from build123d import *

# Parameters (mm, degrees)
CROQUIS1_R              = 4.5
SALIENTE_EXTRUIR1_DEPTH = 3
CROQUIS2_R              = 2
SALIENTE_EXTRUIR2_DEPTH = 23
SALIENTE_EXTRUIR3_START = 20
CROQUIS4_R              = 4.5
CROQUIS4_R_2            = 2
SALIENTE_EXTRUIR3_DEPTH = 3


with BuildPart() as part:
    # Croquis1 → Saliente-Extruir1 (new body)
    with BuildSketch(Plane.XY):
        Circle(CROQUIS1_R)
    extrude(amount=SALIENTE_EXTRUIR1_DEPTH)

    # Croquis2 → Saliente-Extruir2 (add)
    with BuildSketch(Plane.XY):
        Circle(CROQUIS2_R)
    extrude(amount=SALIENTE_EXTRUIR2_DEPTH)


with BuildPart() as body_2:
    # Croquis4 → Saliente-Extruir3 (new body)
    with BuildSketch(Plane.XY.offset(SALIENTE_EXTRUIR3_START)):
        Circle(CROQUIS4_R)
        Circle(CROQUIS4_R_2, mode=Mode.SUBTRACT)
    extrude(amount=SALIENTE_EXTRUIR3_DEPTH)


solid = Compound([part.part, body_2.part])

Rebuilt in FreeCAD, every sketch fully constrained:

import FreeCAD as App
import Part
import Sketcher

V = App.Vector
Q = App.Units.Quantity

doc = App.newDocument("Part")
params = doc.addObject("Spreadsheet::Sheet", "Params")
for row, (alias, value) in enumerate([
    ("sketch1_diameter", "9 mm"),
    ("pad1_length", "3 mm"),
    ("sketch2_diameter", "4 mm"),
    ("pad2_length", "23 mm"),
    ("sketch3_diameter", "9 mm"),
    ("sketch3_diameter2", "4 mm"),
    ("pad3_length", "3 mm"),
], start=1):
    params.set(f"A{row}", alias)
    params.set(f"B{row}", "=" + value)
    params.setAlias(f"B{row}", alias)

body = doc.addObject("PartDesign::Body", "Body")

# Sketch on XY plane
sketch1 = body.newObject("Sketcher::SketchObject", "Sketch")
sketch1.AttachmentSupport = (doc.getObject("XY_Plane"), [""])
sketch1.MapMode = "FlatFace"
sketch1.addGeometry(Part.Circle(V(0, 0, 0), V(0, 0, 1), 4.5), False)
sketch1.addConstraint(Sketcher.Constraint("Coincident", 0, 3, -1, 1))
sketch1.addConstraint(Sketcher.Constraint("Diameter", 0, Q("9 mm")))
sketch1.setExpression("Constraints[1]", "Params.sketch1_diameter")
pad1 = body.newObject("PartDesign::Pad", "Pad")
pad1.Profile = sketch1
pad1.setExpression("Length", "Params.pad1_length")

# Sketch on XY plane
sketch2 = body.newObject("Sketcher::SketchObject", "Sketch001")
sketch2.AttachmentSupport = (doc.getObject("XY_Plane"), [""])
sketch2.MapMode = "FlatFace"
sketch2.addGeometry(Part.Circle(V(0, 0, 0), V(0, 0, 1), 2), False)
sketch2.addConstraint(Sketcher.Constraint("Coincident", 0, 3, -1, 1))
sketch2.addConstraint(Sketcher.Constraint("Diameter", 0, Q("4 mm")))
sketch2.setExpression("Constraints[1]", "Params.sketch2_diameter")
pad2 = body.newObject("PartDesign::Pad", "Pad001")
pad2.Profile = sketch2
pad2.setExpression("Length", "Params.pad2_length")
body2 = doc.addObject("PartDesign::Body", "Body001")

# Sketch on XY plane
sketch3 = body2.newObject("Sketcher::SketchObject", "Sketch002")
sketch3.AttachmentSupport = (doc.getObject("XY_Plane001"), [""])
sketch3.MapMode = "FlatFace"
sketch3.AttachmentOffset = App.Placement(V(0, 0, 20), App.Rotation())
sketch3.addGeometry(Part.Circle(V(0, 0, 0), V(0, 0, 1), 4.5), False)
sketch3.addGeometry(Part.Circle(V(0, 0, 0), V(0, 0, 1), 2), False)
sketch3.addConstraint(Sketcher.Constraint("Coincident", 0, 3, -1, 1))
sketch3.addConstraint(Sketcher.Constraint("Coincident", 1, 3, -1, 1))
sketch3.addConstraint(Sketcher.Constraint("Diameter", 0, Q("9 mm")))
sketch3.addConstraint(Sketcher.Constraint("Diameter", 1, Q("4 mm")))
sketch3.setExpression("Constraints[2]", "Params.sketch3_diameter")
sketch3.setExpression("Constraints[3]", "Params.sketch3_diameter2")
pad3 = body2.newObject("PartDesign::Pad", "Pad002")
pad3.Profile = sketch3
pad3.setExpression("Length", "Params.pad3_length")

doc.recompute()
